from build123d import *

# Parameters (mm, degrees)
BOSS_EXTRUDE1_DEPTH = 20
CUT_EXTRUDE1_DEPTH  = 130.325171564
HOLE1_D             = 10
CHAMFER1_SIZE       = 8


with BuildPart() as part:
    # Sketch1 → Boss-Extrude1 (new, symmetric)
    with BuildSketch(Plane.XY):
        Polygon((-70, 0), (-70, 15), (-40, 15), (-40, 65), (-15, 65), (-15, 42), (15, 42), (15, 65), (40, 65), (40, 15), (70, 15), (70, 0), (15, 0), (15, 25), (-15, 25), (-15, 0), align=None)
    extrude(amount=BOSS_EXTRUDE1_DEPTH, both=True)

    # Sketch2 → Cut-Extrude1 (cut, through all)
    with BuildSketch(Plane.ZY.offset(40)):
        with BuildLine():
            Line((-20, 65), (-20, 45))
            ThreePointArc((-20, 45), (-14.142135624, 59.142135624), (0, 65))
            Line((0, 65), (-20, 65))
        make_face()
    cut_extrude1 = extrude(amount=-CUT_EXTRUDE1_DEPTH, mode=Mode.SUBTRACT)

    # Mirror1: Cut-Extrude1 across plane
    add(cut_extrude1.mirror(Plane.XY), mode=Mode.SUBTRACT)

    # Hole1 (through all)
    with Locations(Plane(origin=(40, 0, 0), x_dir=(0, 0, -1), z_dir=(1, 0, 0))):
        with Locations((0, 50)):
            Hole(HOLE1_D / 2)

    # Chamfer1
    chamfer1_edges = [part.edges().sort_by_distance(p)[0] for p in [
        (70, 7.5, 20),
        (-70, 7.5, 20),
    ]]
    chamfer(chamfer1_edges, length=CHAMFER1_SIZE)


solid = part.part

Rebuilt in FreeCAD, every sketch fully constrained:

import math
import FreeCAD as App
import Part
import Sketcher
from FreeCAD import Vector
Q = App.Units.Quantity


def edges_at(feature, points):
    """Names of the edges that pass closest to the given points."""
    edges = feature.Shape.Edges
    near = lambda p: min(range(len(edges)), key=lambda i: edges[i].distToShape(Part.Vertex(*p))[0])
    return sorted({f"Edge{near(p) + 1}" for p in points})

doc = App.newDocument("Part")
body = doc.addObject("PartDesign::Body", "Body")

sketch1 = body.newObject("Sketcher::SketchObject", "Sketch")
sketch1.AttachmentSupport = (doc.getObject("XY_Plane"), [""])
sketch1.MapMode = "FlatFace"
sketch1.addGeometry(Part.LineSegment(Vector(-70, 15, 0), Vector(-70, 0, 0)), False)
sketch1.addGeometry(Part.LineSegment(Vector(-70, 0, 0), Vector(-15, 0, 0)), False)
sketch1.addGeometry(Part.LineSegment(Vector(-15, 0, 0), Vector(-15, 25, 0)), False)
sketch1.addGeometry(Part.LineSegment(Vector(-15, 25, 0), Vector(15, 25, 0)), False)
sketch1.addGeometry(Part.LineSegment(Vector(15, 25, 0), Vector(15, 0, 0)), False)
sketch1.addGeometry(Part.LineSegment(Vector(15, 0, 0), Vector(70, 0, 0)), False)
sketch1.addGeometry(Part.LineSegment(Vector(70, 0, 0), Vector(70, 15, 0)), False)
sketch1.addGeometry(Part.LineSegment(Vector(70, 15, 0), Vector(40, 15, 0)), False)
sketch1.addGeometry(Part.LineSegment(Vector(40, 15, 0), Vector(40, 65, 0)), False)
sketch1.addGeometry(Part.LineSegment(Vector(40, 65, 0), Vector(15, 65, 0)), False)
sketch1.addGeometry(Part.LineSegment(Vector(15, 65, 0), Vector(15, 42, 0)), False)
sketch1.addGeometry(Part.LineSegment(Vector(15, 42, 0), Vector(-15, 42, 0)), False)
sketch1.addGeometry(Part.LineSegment(Vector(-15, 42, 0), Vector(-15, 65, 0)), False)
sketch1.addGeometry(Part.LineSegment(Vector(-15, 65, 0), Vector(-40, 65, 0)), False)
sketch1.addGeometry(Part.LineSegment(Vector(-40, 65, 0), Vector(-40, 15, 0)), False)
sketch1.addGeometry(Part.LineSegment(Vector(-40, 15, 0), Vector(-70, 15, 0)), False)
sketch1.addConstraint(Sketcher.Constraint("Coincident", 0, 2, 1, 1))
sketch1.addConstraint(Sketcher.Constraint("Coincident", 1, 2, 2, 1))
sketch1.addConstraint(Sketcher.Constraint("Coincident", 2, 2, 3, 1))
sketch1.addConstraint(Sketcher.Constraint("Coincident", 3, 2, 4, 1))
sketch1.addConstraint(Sketcher.Constraint("Coincident", 4, 2, 5, 1))
sketch1.addConstraint(Sketcher.Constraint("Coincident", 5, 2, 6, 1))
sketch1.addConstraint(Sketcher.Constraint("Coincident", 6, 2, 7, 1))
sketch1.addConstraint(Sketcher.Constraint("Coincident", 7, 2, 8, 1))
sketch1.addConstraint(Sketcher.Constraint("Coincident", 8, 2, 9, 1))
sketch1.addConstraint(Sketcher.Constraint("Coincident", 9, 2, 10, 1))
sketch1.addConstraint(Sketcher.Constraint("Coincident", 10, 2, 11, 1))
sketch1.addConstraint(Sketcher.Constraint("Coincident", 11, 2, 12, 1))
sketch1.addConstraint(Sketcher.Constraint("Coincident", 12, 2, 13, 1))
sketch1.addConstraint(Sketcher.Constraint("Coincident", 13, 2, 14, 1))
sketch1.addConstraint(Sketcher.Constraint("Coincident", 14, 2, 15, 1))
sketch1.addConstraint(Sketcher.Constraint("Coincident", 15, 2, 0, 1))
sketch1.addConstraint(Sketcher.Constraint("Vertical", 0))
sketch1.addConstraint(Sketcher.Constraint("Horizontal", 1))
sketch1.addConstraint(Sketcher.Constraint("Vertical", 2))
sketch1.addConstraint(Sketcher.Constraint("Horizontal", 3))
sketch1.addConstraint(Sketcher.Constraint("Vertical", 4))
sketch1.addConstraint(Sketcher.Constraint("Horizontal", 5))
sketch1.addConstraint(Sketcher.Constraint("Vertical", 6))
sketch1.addConstraint(Sketcher.Constraint("Horizontal", 7))
sketch1.addConstraint(Sketcher.Constraint("Vertical", 8))
sketch1.addConstraint(Sketcher.Constraint("Horizontal", 9))
sketch1.addConstraint(Sketcher.Constraint("Vertical", 10))
sketch1.addConstraint(Sketcher.Constraint("Horizontal", 11))
sketch1.addConstraint(Sketcher.Constraint("Vertical", 12))
sketch1.addConstraint(Sketcher.Constraint("Horizontal", 13))
sketch1.addConstraint(Sketcher.Constraint("Vertical", 14))
sketch1.addConstraint(Sketcher.Constraint("Horizontal", 15))
sketch1.addConstraint(Sketcher.Constraint("Symmetric", 1, 2, 4, 2, -1, 1))
sketch1.addConstraint(Sketcher.Constraint("Symmetric", 0, 2, 5, 2, -2))
sketch1.addConstraint(Sketcher.Constraint("Symmetric", 9, 2, 12, 2, -2))
sketch1.addConstraint(Sketcher.Constraint("Symmetric", 7, 2, 14, 2, -2))
sketch1.addConstraint(Sketcher.Constraint("Vertical", 4, 2, 9, 2))
sketch1.addConstraint(Sketcher.Constraint("Equal", 3, 7))
sketch1.addConstraint(Sketcher.Constraint("Equal", 13, 2))
sketch1.addConstraint(Sketcher.Constraint("DistanceX", 1, 1, 1, 2, Q("55 mm")))
sketch1.addConstraint(Sketcher.Constraint("DistanceX", 3, 1, 3, 2, Q("30 mm")))
sketch1.addConstraint(Sketcher.Constraint("DistanceY", 0, 2, 0, 1, Q("15 mm")))
sketch1.addConstraint(Sketcher.Constraint("DistanceY", 8, 1, 8, 2, Q("50 mm")))
sketch1.addConstraint(Sketcher.Constraint("DistanceY", 10, 2, 10, 1, Q("23 mm")))
pad1 = body.newObject("PartDesign::Pad", "Pad")
pad1.Profile = sketch1
pad1.Length = 40
pad1.Midplane = True

sketch2 = body.newObject("Sketcher::SketchObject", "Sketch001")
sketch2.AttachmentSupport = (doc.getObject("YZ_Plane"), [""])
sketch2.MapMode = "FlatFace"
sketch2.AttachmentOffset = App.Placement(Vector(0, 0, -40), App.Rotation())
sketch2.addGeometry(Part.LineSegment(Vector(65, -20, 0), Vector(45, -20, 0)), False)
sketch2.addGeometry(Part.ArcOfCircle(Part.Circle(Vector(45, 0, 0), Vector(0, 0, 1), 20), math.radians(-90), math.radians(0)), False)
sketch2.addGeometry(Part.LineSegment(Vector(65, 0, 0), Vector(65, -20, 0)), False)
sketch2.addConstraint(Sketcher.Constraint("Tangent", 0, 2, 1, 1))
sketch2.addConstraint(Sketcher.Constraint("Tangent", 1, 2, 2, 1))
sketch2.addConstraint(Sketcher.Constraint("Coincident", 2, 2, 0, 1))
sketch2.addConstraint(Sketcher.Constraint("Horizontal", 0))
sketch2.addConstraint(Sketcher.Constraint("Vertical", 2))
sketch2.addConstraint(Sketcher.Constraint("PointOnObject", 1, 3, -1))
sketch2.addConstraint(Sketcher.Constraint("Radius", 1, Q("20 mm")))
sketch2.addConstraint(Sketcher.Constraint("DistanceX", -1, 1, 1, 3, Q("45 mm")))
pocket1 = body.newObject("PartDesign::Pocket", "Pocket")
pocket1.Profile = sketch2
pocket1.Type = "ThroughAll"
pocket1.Reversed = True
doc.recompute()

mirrored = body.newObject("PartDesign::Mirrored", "Mirrored")
mirrored.Originals = [pocket1]
mirrored.MirrorPlane = (doc.getObject("XY_Plane"), [""])
body.Tip = mirrored

sketch3 = body.newObject("Sketcher::SketchObject", "Sketch002")
sketch3.AttachmentSupport = (doc.getObject("YZ_Plane"), [""])
sketch3.MapMode = "FlatFace"
sketch3.AttachmentOffset = App.Placement(Vector(0, 0, 40), App.Rotation())
sketch3.addGeometry(Part.Circle(Vector(50, 0, 0), Vector(0, 0, 1), 5), False)
sketch3.addConstraint(Sketcher.Constraint("PointOnObject", 0, 3, -1))
sketch3.addConstraint(Sketcher.Constraint("Diameter", 0, Q("10 mm")))
sketch3.addConstraint(Sketcher.Constraint("DistanceX", -1, 1, 0, 3, Q("50 mm")))
doc.recompute()
hole = body.newObject("PartDesign::Hole", "Hole")
hole.Profile = sketch3
hole.ThreadType = "None"
hole.Diameter = 10
hole.DepthType = "ThroughAll"
doc.recompute()

chamfer = body.newObject("PartDesign::Chamfer", "Chamfer")
chamfer.Base = (hole, edges_at(hole, [(70, 7.5, 20), (-70, 7.5, 20)]))
chamfer.Size = 8

doc.recompute()
